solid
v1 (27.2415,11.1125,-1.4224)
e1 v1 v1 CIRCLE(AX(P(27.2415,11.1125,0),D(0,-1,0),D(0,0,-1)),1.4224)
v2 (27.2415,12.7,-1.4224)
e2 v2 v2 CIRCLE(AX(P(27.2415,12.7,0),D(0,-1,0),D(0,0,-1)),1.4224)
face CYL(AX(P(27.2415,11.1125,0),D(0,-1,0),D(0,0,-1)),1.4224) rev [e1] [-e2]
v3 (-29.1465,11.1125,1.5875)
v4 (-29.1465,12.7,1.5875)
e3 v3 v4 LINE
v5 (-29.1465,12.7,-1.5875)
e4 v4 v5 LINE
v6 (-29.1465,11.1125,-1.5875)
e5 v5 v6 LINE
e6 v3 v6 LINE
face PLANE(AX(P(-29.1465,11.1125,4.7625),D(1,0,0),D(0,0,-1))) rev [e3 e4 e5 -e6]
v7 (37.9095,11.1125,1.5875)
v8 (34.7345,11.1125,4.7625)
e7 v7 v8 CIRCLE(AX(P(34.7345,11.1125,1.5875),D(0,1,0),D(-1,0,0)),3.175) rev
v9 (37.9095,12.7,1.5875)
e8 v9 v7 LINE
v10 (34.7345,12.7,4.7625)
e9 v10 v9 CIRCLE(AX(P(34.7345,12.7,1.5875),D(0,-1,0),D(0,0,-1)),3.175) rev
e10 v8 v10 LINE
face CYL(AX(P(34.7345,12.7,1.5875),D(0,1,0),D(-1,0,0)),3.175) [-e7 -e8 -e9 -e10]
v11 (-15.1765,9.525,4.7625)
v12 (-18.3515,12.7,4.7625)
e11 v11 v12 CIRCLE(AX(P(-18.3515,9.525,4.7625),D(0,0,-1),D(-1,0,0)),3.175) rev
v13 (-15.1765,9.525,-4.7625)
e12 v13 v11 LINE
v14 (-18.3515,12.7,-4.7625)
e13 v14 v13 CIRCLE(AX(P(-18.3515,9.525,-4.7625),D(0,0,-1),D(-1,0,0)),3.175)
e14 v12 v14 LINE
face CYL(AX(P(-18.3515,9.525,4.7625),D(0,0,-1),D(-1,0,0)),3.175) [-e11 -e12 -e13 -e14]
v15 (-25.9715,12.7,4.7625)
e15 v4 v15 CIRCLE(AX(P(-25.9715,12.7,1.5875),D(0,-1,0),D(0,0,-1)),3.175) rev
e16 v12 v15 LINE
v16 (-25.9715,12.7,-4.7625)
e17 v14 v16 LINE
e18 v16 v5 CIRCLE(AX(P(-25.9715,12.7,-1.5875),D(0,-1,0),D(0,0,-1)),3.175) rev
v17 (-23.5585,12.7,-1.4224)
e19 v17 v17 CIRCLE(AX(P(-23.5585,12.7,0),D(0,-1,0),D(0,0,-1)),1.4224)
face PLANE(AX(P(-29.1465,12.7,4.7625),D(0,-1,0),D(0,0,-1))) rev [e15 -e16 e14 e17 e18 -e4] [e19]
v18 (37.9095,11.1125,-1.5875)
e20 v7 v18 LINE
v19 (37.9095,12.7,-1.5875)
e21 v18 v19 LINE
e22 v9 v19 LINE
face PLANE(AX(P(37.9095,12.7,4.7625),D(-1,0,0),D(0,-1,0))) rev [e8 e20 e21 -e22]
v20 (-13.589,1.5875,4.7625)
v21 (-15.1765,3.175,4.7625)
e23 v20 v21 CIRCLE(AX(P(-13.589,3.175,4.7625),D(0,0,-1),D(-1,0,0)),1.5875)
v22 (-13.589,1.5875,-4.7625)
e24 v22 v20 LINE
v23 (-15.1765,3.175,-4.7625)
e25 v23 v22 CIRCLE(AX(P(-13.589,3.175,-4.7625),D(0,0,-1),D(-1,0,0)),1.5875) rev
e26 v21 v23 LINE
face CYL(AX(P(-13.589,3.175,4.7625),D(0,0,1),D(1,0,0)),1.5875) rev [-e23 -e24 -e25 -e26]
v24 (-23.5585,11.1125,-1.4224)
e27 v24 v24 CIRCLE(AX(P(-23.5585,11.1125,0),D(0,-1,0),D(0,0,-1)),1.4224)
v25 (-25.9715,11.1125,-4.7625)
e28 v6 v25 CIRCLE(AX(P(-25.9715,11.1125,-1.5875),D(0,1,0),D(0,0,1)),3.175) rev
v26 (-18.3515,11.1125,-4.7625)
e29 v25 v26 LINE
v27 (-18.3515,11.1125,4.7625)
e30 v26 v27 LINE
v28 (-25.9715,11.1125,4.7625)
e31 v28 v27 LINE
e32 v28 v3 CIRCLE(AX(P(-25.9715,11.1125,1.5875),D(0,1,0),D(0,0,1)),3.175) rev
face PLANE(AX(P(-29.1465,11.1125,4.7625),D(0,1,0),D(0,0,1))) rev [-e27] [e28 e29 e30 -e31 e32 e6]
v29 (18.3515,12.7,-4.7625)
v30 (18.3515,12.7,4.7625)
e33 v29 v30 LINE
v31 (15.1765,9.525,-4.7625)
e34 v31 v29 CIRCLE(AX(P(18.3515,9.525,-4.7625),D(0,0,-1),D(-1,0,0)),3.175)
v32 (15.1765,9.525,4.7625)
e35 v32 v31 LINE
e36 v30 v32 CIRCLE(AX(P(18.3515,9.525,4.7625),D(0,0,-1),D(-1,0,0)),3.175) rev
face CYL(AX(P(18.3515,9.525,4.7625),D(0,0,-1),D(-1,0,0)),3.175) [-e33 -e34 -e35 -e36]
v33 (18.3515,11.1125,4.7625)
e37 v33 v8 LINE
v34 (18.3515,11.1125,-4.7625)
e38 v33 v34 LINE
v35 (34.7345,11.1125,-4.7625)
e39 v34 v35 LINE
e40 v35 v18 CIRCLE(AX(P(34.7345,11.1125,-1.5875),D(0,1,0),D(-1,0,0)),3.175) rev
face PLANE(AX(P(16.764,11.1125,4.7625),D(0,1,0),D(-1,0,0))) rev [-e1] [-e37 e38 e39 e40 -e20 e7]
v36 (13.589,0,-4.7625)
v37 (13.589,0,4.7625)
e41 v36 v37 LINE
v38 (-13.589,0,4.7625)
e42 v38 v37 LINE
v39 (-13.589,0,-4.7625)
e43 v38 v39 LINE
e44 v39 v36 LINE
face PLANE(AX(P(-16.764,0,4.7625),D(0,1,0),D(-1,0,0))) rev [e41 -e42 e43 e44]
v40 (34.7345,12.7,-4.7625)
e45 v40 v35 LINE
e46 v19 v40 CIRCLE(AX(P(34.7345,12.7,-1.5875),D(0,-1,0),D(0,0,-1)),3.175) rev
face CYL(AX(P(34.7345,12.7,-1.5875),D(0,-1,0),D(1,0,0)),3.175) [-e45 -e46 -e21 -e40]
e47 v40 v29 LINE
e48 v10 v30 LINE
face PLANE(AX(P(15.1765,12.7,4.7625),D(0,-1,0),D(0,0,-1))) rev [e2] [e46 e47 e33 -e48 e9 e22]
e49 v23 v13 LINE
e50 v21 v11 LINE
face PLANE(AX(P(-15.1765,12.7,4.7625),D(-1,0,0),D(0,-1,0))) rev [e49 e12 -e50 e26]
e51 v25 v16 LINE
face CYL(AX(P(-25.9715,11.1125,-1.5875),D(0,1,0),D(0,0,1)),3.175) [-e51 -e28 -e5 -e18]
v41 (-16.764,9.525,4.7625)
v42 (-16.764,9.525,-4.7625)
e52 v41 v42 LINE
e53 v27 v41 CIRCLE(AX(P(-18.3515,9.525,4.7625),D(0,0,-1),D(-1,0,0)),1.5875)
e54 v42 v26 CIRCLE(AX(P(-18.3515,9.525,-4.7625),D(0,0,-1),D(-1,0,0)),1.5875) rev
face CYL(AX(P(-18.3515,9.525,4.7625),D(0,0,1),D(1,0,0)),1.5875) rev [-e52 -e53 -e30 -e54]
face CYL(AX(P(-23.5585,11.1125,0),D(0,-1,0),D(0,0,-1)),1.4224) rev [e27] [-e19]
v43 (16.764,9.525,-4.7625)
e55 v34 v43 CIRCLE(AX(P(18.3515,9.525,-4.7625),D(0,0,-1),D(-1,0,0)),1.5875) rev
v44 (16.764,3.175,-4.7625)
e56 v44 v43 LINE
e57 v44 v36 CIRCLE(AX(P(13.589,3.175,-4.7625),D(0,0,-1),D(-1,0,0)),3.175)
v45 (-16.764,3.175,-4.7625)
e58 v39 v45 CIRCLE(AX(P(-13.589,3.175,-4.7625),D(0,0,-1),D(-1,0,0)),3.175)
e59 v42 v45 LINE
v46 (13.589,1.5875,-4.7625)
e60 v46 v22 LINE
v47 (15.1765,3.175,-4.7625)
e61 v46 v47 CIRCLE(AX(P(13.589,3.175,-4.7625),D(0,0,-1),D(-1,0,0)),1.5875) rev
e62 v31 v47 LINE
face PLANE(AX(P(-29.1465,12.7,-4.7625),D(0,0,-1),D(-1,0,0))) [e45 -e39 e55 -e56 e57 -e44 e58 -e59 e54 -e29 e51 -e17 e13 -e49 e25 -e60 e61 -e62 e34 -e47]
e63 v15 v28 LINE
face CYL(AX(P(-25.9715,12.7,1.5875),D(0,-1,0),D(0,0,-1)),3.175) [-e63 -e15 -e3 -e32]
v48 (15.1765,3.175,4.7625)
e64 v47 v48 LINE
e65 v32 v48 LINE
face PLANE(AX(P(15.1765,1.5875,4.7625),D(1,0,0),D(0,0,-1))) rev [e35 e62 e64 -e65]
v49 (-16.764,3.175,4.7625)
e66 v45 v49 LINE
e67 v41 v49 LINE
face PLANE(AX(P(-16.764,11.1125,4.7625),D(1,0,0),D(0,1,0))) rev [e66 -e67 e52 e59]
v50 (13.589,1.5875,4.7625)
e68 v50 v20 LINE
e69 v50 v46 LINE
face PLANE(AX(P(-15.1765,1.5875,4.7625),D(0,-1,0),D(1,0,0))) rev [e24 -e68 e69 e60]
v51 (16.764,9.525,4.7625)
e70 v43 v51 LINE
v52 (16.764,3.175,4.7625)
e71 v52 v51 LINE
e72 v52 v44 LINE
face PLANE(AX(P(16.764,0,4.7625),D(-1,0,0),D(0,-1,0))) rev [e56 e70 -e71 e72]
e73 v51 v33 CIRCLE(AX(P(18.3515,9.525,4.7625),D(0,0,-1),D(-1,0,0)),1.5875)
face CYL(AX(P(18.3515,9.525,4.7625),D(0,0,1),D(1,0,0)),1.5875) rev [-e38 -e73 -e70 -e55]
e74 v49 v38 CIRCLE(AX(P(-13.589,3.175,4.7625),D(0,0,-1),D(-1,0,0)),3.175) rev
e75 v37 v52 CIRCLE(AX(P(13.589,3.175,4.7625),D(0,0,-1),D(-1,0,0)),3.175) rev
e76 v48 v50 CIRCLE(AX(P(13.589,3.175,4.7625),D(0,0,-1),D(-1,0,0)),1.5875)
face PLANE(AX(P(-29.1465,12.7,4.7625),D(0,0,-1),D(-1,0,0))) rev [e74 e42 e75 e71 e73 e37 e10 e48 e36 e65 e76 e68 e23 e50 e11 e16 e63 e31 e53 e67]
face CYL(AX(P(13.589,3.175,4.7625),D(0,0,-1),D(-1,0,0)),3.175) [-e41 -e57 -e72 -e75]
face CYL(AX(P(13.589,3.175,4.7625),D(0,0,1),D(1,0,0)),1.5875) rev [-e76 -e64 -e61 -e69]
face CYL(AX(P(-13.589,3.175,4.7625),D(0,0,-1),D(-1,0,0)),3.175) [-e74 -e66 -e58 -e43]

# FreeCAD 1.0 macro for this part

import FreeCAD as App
import Part
import Sketcher
Q = App.Units.Quantity


def edges_at(feature, points):
    """Names of the edges that pass closest to the given points."""
    edges = feature.Shape.Edges
    near = lambda p: min(range(len(edges)), key=lambda i: edges[i].distToShape(Part.Vertex(*p))[0])
    return sorted({f"Edge{near(p) + 1}" for p in points})


def add_polygon(sketch, points):
    """Adds a closed chain of lines whose ends are joined by coincident constraints."""
    first, n = sketch.GeometryCount, len(points)
    for a, b in zip(points, points[1:] + points[:1]):
        sketch.addGeometry(Part.LineSegment(App.Vector(*a, 0), App.Vector(*b, 0)), False)
    for i in range(n):
        sketch.addConstraint(Sketcher.Constraint("Coincident", first + i, 2, first + (i + 1) % n, 1))

doc = App.newDocument("Part")
body = doc.addObject("PartDesign::Body", "Body")

# Sketch on XY plane
sketch1 = body.newObject("Sketcher::SketchObject", "Sketch")
sketch1.AttachmentSupport = (doc.getObject("XY_Plane"), [""])
sketch1.MapMode = "FlatFace"
add_polygon(sketch1, [(-29.1, 11.1), (-16.8, 11.1), (-16.8, 0), (16.8, 0), (16.8, 11.1), (37.9, 11.1), (37.9, 12.7), (15.2, 12.7), (15.2, 1.6), (-15.2, 1.6), (-15.2, 12.7), (-29.1, 12.7)])  # lines 0-11
sketch1.addConstraint([
    Sketcher.Constraint("Horizontal", 0),
    Sketcher.Constraint("Vertical", 1),
    Sketcher.Constraint("Horizontal", 2),
    Sketcher.Constraint("Vertical", 3),
    Sketcher.Constraint("Horizontal", 4),
    Sketcher.Constraint("Vertical", 5),
    Sketcher.Constraint("Horizontal", 6),
    Sketcher.Constraint("Vertical", 7),
    Sketcher.Constraint("Horizontal", 8),
    Sketcher.Constraint("Vertical", 9),
    Sketcher.Constraint("Horizontal", 10),
    Sketcher.Constraint("Vertical", 11),
    Sketcher.Constraint("Symmetric", 1, 2, 2, 2, -1, 1),
    Sketcher.Constraint("Symmetric", 6, 2, 9, 2, -2),
    Sketcher.Constraint("Horizontal", 0, 2, 3, 2),
    Sketcher.Constraint("Equal", 3, 7),
    Sketcher.Constraint("DistanceX", 2, 1, 2, 2, Q("1.32 in")),
    Sketcher.Constraint("DistanceX", 10, 2, 10, 1, Q("0.55 in")),
    Sketcher.Constraint("DistanceY", -1, 1, 5, 2, Q("0.5 in")),
    Sketcher.Constraint("DistanceX", 6, 2, 6, 1, Q("0.895 in")),
    Sketcher.Constraint("DistanceX", 8, 2, 8, 1, Q("1.195 in")),
    Sketcher.Constraint("DistanceY", 1, 2, 1, 1, Q("0.4375 in")),
])
pad1 = body.newObject("PartDesign::Pad", "Pad")
pad1.Profile = sketch1
pad1.Length = Q("0.375 in")
pad1.Midplane = True
doc.recompute()

fillet = body.newObject("PartDesign::Fillet", "Fillet")
fillet.Base = (pad1, edges_at(pad1, [
    (-15.177, 1.587, 0),
    (15.177, 1.587, 0),
    (16.764, 11.113, 0),
    (-16.764, 11.113, 0),
]))
fillet.Radius = Q("0.0625 in")
doc.recompute()

fillet2 = body.newObject("PartDesign::Fillet", "Fillet001")
fillet2.Base = (fillet, edges_at(fillet, [
    (-15.177, 12.7, 0),
    (15.177, 12.7, 0),
    (16.764, 0, 0),
    (-16.764, 0, 0),
]))
fillet2.Radius = Q("0.125 in")
doc.recompute()

fillet3 = body.newObject("PartDesign::Fillet", "Fillet002")
fillet3.Base = (fillet2, edges_at(fillet2, [
    (37.91, 11.906, -4.763),
    (-29.146, 11.906, -4.763),
    (37.91, 11.906, 4.763),
    (-29.146, 11.906, 4.763),
]))
fillet3.Radius = Q("0.125 in")

# Sketch on XZ plane
sketch2 = body.newObject("Sketcher::SketchObject", "Sketch001")
sketch2.AttachmentSupport = (doc.getObject("XZ_Plane"), [""])
sketch2.MapMode = "FlatFace"
sketch2.AttachmentOffset = App.Placement(App.Vector(0, 0, -0.4375 * 25.4), App.Rotation())
sketch2.addGeometry(Part.Circle(App.Vector(27.2, 0, 0), App.Vector(0, 0, 1), 1.4), False)
sketch2.addConstraint([
    Sketcher.Constraint("PointOnObject", 0, 3, -1),
    Sketcher.Constraint("Diameter", 0, Q("0.112 in")),
    Sketcher.Constraint("DistanceX", -1, 1, 0, 3, Q("1.0725 in")),
])
doc.recompute()
hole = body.newObject("PartDesign::Hole", "Hole")
hole.Profile = sketch2
hole.ThreadType = "None"
hole.Diameter = Q("0.112 in")
hole.DepthType = "ThroughAll"

# Sketch on XZ plane
sketch3 = body.newObject("Sketcher::SketchObject", "Sketch002")
sketch3.AttachmentSupport = (doc.getObject("XZ_Plane"), [""])
sketch3.MapMode = "FlatFace"
sketch3.AttachmentOffset = App.Placement(App.Vector(0, 0, -0.4375 * 25.4), App.Rotation())
sketch3.addGeometry(Part.Circle(App.Vector(-23.6, 0, 0), App.Vector(0, 0, 1), 1.4), False)
sketch3.addConstraint([
    Sketcher.Constraint("PointOnObject", 0, 3, -1),
    Sketcher.Constraint("Diameter", 0, Q("0.112 in")),
    Sketcher.Constraint("DistanceX", 0, 3, -1, 1, Q("0.9275 in")),
])
doc.recompute()
hole2 = body.newObject("PartDesign::Hole", "Hole001")
hole2.Profile = sketch3
hole2.ThreadType = "None"
hole2.Diameter = Q("0.112 in")
hole2.DepthType = "ThroughAll"

doc.recompute()
